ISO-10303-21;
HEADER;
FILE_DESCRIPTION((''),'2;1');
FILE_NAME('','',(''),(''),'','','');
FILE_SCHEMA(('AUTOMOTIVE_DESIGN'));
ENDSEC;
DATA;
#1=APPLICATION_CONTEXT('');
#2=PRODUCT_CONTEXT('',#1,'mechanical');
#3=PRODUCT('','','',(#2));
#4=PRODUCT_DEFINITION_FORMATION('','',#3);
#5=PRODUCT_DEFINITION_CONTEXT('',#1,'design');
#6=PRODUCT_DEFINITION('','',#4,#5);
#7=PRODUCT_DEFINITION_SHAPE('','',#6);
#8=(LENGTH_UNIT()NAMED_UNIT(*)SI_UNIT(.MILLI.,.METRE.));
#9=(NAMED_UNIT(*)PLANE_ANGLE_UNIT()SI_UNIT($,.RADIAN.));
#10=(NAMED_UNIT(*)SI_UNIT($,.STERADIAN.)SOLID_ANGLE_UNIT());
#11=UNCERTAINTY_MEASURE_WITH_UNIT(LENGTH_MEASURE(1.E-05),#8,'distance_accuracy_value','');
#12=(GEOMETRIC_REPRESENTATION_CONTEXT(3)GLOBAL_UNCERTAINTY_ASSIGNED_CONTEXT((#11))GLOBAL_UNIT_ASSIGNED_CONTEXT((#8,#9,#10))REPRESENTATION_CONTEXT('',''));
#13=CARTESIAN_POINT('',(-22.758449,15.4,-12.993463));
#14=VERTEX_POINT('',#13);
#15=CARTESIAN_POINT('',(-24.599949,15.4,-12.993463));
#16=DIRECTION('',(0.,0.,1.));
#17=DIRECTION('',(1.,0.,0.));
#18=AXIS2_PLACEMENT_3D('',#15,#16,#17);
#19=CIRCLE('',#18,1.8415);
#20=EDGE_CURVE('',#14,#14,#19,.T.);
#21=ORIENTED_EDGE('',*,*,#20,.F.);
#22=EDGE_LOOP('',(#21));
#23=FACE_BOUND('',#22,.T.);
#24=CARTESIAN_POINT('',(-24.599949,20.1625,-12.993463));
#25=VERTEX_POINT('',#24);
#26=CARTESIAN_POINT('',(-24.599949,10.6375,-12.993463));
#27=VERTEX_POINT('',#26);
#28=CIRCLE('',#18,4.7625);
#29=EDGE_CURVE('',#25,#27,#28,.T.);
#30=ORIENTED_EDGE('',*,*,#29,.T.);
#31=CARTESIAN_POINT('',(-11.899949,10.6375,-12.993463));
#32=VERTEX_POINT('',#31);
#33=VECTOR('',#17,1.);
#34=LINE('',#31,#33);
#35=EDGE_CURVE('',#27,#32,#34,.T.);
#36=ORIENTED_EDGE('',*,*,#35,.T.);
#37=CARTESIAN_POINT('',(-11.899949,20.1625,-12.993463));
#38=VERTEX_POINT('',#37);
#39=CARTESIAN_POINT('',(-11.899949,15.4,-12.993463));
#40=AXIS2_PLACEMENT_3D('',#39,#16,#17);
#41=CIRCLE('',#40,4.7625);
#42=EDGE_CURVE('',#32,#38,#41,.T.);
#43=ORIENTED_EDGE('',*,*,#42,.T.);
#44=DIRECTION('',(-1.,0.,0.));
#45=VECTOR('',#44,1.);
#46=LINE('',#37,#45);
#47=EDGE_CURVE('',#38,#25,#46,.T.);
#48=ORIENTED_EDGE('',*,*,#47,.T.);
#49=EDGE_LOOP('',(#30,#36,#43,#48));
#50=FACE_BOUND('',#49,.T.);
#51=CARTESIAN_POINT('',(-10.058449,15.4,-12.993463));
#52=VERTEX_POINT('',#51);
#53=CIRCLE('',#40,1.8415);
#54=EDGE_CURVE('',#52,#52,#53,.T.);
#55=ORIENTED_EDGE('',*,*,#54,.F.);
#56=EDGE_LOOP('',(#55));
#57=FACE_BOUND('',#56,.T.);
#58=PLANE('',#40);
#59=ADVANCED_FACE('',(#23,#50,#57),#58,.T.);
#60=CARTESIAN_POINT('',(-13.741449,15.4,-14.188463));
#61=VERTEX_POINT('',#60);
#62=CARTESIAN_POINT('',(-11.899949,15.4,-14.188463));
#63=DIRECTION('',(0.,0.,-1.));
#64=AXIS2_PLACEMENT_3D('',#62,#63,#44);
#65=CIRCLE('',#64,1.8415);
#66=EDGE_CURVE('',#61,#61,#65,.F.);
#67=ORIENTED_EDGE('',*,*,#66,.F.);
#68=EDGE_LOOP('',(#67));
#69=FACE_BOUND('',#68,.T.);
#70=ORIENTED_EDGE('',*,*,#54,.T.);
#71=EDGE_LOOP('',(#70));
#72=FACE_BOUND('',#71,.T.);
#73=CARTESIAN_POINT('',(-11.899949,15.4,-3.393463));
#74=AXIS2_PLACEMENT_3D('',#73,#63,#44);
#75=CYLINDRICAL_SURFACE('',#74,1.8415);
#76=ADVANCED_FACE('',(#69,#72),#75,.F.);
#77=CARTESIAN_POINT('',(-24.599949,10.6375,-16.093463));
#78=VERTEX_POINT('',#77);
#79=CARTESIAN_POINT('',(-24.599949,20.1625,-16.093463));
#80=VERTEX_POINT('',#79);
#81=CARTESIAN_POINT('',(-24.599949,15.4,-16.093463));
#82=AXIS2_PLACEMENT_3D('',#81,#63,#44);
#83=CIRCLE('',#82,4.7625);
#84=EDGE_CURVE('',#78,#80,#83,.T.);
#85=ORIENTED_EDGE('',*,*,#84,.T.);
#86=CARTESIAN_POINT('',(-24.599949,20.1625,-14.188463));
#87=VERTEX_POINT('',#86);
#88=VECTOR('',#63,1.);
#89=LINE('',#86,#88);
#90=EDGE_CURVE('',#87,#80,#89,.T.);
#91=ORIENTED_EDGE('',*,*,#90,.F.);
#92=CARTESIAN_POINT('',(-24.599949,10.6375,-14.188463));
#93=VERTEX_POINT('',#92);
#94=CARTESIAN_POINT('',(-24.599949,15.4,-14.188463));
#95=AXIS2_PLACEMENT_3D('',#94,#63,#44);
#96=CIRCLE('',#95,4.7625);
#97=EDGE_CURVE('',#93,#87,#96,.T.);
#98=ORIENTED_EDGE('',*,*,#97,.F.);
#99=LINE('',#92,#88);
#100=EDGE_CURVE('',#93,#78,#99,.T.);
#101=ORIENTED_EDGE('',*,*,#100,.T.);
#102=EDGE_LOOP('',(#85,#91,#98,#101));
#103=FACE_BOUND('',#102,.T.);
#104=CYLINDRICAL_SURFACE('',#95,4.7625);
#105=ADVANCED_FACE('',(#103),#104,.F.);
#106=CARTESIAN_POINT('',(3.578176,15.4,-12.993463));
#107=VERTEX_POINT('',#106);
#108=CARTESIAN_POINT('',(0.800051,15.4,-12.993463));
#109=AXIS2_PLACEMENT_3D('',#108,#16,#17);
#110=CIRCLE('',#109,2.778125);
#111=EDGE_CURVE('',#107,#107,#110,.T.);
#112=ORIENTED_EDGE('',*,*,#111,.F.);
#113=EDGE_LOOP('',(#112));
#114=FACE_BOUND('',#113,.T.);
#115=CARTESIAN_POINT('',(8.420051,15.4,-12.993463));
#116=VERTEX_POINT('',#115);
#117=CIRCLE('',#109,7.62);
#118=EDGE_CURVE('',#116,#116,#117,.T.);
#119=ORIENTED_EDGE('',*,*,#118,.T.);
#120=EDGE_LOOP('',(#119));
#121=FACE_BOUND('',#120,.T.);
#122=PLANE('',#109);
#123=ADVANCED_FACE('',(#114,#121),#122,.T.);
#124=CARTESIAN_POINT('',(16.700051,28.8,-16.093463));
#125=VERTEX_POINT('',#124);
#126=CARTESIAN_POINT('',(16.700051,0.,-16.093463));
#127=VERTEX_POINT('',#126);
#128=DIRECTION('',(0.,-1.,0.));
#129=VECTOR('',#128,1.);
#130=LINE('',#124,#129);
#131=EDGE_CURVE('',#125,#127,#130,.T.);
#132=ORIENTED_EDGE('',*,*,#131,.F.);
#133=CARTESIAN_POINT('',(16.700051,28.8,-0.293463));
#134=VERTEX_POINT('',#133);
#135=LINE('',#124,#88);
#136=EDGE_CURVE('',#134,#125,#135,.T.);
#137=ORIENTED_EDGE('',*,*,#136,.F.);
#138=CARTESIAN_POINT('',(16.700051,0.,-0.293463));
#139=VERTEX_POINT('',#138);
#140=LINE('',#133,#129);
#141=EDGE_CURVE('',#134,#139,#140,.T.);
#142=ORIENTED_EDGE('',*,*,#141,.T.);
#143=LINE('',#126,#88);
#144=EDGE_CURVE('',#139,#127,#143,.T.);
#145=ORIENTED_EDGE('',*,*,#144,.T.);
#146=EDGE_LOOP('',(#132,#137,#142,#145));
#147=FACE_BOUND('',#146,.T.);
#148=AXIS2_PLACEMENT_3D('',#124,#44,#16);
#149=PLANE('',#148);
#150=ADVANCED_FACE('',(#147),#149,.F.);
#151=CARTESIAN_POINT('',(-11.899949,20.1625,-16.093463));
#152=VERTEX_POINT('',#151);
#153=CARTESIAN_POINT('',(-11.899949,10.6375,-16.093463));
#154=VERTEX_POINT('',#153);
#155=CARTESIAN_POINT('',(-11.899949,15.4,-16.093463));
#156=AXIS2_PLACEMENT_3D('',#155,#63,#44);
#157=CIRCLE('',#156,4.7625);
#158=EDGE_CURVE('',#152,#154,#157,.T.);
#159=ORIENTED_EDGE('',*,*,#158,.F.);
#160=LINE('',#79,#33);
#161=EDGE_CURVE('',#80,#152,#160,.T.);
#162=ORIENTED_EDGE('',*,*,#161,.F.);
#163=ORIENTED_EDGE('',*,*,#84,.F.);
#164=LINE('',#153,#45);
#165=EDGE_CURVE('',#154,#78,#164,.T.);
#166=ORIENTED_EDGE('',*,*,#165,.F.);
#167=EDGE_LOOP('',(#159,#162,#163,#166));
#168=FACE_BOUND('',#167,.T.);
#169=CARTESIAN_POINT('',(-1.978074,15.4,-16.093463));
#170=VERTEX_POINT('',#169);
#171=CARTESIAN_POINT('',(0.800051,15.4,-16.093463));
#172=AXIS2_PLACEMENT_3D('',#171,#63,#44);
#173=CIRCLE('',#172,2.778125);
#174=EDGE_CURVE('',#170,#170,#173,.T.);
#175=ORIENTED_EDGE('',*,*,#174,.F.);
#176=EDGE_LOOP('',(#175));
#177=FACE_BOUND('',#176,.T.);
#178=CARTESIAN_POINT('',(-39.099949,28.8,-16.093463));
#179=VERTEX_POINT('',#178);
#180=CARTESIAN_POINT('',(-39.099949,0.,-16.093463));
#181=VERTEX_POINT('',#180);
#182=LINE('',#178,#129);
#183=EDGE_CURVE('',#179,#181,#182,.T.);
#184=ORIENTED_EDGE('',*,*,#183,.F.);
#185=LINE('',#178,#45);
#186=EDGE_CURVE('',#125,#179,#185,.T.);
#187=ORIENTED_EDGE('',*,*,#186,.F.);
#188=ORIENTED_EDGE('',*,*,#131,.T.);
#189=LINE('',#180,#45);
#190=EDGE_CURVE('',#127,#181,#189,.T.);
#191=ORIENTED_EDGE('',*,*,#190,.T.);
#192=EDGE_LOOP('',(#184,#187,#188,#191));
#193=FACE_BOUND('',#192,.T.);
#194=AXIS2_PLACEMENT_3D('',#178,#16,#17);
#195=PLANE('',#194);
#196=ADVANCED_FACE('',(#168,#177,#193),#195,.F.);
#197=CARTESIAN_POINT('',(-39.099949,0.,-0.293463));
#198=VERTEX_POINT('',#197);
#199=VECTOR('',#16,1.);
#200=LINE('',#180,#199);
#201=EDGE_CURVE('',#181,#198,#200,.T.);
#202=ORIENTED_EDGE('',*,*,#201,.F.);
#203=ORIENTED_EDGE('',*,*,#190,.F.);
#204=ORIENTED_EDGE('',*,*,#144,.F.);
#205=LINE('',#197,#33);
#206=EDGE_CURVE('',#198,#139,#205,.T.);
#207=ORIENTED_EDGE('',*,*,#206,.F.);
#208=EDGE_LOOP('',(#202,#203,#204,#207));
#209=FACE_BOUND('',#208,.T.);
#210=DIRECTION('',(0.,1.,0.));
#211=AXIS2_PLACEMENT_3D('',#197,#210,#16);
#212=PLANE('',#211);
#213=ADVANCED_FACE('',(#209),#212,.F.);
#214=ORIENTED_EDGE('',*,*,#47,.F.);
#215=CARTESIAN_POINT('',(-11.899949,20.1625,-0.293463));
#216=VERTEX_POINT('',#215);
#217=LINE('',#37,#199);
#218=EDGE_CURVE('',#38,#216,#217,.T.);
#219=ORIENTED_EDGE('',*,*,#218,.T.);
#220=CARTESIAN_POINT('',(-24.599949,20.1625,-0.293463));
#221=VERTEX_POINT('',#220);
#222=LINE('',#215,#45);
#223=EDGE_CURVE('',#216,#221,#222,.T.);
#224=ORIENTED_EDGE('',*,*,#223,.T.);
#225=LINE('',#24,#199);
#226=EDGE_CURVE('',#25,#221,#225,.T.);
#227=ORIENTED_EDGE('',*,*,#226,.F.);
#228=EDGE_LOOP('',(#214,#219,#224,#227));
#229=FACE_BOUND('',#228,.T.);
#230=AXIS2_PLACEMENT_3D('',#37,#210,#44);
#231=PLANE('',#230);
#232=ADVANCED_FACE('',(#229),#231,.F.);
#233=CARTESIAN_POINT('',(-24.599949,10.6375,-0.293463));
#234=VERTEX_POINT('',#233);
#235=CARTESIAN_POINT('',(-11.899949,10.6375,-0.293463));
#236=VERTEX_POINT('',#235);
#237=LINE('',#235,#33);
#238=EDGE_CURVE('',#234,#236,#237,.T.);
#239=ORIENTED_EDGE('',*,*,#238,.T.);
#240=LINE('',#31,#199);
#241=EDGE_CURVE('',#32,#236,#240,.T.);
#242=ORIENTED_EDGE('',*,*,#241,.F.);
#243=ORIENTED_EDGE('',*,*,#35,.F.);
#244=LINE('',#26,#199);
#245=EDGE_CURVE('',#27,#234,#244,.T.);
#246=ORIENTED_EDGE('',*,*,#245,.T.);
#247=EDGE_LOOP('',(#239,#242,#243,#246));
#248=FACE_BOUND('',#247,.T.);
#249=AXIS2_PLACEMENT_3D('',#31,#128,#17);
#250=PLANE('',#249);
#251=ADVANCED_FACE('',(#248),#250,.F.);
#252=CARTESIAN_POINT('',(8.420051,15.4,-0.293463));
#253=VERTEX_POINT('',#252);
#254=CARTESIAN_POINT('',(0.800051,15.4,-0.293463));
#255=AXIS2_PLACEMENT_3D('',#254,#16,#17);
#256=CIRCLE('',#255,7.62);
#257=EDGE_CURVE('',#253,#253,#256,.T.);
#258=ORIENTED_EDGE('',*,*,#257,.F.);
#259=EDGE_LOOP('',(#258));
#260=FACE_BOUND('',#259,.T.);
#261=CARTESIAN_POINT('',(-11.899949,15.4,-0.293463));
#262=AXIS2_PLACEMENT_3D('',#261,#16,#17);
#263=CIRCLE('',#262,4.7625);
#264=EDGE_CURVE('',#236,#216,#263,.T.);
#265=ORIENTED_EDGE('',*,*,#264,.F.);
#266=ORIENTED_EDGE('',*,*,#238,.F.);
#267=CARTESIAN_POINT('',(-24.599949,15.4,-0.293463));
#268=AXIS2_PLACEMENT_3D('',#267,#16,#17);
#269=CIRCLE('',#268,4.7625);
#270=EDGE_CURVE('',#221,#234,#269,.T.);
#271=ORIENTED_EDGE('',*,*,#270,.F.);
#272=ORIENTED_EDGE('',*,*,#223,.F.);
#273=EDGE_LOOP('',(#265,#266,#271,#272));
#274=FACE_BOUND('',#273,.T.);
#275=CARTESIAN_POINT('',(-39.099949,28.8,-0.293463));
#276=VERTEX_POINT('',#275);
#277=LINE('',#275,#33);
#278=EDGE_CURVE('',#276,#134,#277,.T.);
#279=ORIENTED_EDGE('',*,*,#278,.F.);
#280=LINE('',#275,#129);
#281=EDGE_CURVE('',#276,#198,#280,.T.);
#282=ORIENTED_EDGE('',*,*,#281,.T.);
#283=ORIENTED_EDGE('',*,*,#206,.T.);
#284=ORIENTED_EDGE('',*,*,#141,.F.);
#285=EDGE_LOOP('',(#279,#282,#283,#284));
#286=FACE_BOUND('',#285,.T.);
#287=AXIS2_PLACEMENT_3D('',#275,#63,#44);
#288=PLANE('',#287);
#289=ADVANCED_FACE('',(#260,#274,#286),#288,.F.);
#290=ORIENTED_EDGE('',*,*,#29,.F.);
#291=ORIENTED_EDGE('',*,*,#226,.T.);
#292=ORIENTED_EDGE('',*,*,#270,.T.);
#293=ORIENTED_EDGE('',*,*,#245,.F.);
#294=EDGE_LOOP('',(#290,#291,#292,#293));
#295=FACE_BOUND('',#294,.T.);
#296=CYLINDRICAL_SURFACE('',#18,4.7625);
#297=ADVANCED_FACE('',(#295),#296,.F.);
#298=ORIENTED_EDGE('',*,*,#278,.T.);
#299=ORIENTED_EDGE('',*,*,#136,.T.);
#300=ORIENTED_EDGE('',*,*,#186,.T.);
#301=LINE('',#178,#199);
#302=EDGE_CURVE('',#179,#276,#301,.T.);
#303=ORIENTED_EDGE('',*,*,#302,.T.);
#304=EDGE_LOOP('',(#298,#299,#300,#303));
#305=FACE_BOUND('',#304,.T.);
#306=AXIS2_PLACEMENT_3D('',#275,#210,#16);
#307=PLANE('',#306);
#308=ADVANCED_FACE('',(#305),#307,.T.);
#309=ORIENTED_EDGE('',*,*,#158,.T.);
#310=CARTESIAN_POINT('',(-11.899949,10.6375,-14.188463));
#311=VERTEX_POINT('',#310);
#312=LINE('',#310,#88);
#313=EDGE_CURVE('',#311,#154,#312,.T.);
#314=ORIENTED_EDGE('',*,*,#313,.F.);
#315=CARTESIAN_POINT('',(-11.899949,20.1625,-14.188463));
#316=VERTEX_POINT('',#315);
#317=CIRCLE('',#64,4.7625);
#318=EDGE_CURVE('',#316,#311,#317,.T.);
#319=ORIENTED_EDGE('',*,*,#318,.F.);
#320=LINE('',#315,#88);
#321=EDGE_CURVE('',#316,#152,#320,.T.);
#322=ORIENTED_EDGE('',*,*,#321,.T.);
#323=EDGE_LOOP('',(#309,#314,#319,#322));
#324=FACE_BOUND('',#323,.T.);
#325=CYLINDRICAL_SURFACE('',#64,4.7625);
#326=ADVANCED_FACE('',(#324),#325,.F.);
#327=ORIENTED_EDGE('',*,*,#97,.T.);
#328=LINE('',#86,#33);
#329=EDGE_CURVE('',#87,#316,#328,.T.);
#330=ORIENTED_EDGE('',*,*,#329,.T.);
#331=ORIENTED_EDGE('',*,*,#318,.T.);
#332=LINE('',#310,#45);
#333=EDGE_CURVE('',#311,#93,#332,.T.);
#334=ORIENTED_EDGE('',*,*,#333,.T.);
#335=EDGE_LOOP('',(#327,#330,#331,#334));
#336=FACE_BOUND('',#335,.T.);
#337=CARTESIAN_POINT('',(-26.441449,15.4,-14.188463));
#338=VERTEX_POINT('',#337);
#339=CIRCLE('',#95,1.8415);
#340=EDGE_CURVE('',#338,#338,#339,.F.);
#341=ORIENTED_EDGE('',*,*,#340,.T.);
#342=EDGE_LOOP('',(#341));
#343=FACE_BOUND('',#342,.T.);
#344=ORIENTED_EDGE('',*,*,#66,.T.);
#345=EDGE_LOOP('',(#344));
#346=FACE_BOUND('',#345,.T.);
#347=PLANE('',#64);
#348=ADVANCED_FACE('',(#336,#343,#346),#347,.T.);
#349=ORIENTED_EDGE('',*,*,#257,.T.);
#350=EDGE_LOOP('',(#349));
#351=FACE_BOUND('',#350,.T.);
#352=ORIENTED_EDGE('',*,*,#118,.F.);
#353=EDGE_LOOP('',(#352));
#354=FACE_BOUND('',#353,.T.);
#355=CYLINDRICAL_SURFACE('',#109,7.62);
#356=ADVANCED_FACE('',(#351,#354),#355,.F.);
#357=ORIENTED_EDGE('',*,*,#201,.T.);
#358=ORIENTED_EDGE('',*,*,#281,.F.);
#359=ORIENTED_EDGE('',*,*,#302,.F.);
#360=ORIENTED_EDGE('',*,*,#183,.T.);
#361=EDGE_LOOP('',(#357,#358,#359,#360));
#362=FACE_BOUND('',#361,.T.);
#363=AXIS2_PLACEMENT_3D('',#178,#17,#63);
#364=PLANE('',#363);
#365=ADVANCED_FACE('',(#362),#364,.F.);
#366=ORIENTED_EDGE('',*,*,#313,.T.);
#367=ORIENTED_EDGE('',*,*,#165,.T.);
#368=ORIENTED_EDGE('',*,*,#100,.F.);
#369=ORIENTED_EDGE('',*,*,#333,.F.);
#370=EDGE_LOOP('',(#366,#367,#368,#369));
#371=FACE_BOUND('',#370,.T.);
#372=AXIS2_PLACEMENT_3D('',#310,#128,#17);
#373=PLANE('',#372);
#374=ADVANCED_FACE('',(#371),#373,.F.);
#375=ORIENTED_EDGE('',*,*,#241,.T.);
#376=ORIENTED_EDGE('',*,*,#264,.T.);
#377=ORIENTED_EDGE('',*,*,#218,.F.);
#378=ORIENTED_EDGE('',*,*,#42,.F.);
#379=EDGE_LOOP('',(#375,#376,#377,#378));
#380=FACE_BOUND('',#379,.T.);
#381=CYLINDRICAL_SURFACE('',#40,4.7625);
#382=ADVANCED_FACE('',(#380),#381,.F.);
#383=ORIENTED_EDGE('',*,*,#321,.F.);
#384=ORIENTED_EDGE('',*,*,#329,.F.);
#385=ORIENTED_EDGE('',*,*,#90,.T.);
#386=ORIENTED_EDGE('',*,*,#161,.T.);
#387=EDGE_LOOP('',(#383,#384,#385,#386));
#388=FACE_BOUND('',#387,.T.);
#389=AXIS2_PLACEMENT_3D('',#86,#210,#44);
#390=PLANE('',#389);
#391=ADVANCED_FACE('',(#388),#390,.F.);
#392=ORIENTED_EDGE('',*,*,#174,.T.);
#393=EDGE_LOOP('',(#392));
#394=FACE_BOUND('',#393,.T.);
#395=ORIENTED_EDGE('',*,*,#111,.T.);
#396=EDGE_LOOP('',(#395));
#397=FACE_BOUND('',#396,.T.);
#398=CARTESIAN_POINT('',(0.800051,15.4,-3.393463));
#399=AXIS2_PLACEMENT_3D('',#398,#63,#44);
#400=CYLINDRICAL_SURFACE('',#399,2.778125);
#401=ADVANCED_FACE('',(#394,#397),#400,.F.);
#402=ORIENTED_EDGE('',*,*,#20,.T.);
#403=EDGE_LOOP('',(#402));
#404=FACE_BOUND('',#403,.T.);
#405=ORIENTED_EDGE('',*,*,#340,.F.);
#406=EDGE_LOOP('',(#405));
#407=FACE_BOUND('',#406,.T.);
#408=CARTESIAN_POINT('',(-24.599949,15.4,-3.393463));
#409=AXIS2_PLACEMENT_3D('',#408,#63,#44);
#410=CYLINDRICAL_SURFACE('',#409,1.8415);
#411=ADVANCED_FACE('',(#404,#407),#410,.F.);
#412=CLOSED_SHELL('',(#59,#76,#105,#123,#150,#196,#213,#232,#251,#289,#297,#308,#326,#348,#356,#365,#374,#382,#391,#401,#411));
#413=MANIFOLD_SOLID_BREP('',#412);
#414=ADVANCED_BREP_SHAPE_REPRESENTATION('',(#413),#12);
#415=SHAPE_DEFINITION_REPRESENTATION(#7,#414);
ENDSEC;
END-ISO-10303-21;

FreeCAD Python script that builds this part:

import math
import FreeCAD as App
import Part
import Sketcher

V = App.Vector
Q = App.Units.Quantity

doc = App.newDocument("Part")
body = doc.addObject("PartDesign::Body", "Body")

# Sketch on XZ plane
sketch1 = body.newObject("Sketcher::SketchObject", "Sketch")
sketch1.AttachmentSupport = (doc.getObject("XZ_Plane"), [""])
sketch1.MapMode = "FlatFace"
sketch1.addGeometry([
    Part.LineSegment(V(-39, -16, 0), V(-39, 0, 0)),
    Part.LineSegment(V(-39, 0, 0), V(17, 0, 0)),
    Part.LineSegment(V(17, 0, 0), V(17, -16, 0)),
    Part.LineSegment(V(17, -16, 0), V(-39, -16, 0)),
], False)
sketch1.addConstraint([
    Sketcher.Constraint("Coincident", 0, 2, 1, 1),
    Sketcher.Constraint("Coincident", 1, 2, 2, 1),
    Sketcher.Constraint("Coincident", 2, 2, 3, 1),
    Sketcher.Constraint("Coincident", 3, 2, 0, 1),
    Sketcher.Constraint("Vertical", 0),
    Sketcher.Constraint("Horizontal", 1),
    Sketcher.Constraint("Vertical", 2),
    Sketcher.Constraint("Horizontal", 3),
    Sketcher.Constraint("DistanceX", 1, 1, 1, 2, Q("55.8 mm")),
    Sketcher.Constraint("DistanceY", 0, 1, 0, 2, Q("15.8 mm")),
    Sketcher.Constraint("DistanceX", 0, 2, -1, 1, Q("39.099949 mm")),
    Sketcher.Constraint("DistanceY", 0, 2, -1, 1, Q("0.293463 mm")),
])
pad1 = body.newObject("PartDesign::Pad", "Pad")
pad1.Profile = sketch1
pad1.Length = 28.8
pad1.Reversed = True

# Sketch on XY plane
sketch2 = body.newObject("Sketcher::SketchObject", "Sketch001")
sketch2.AttachmentSupport = (doc.getObject("XY_Plane"), [""])
sketch2.MapMode = "FlatFace"
sketch2.AttachmentOffset = App.Placement(V(0, 0, -0.293463), App.Rotation())
sketch2.addGeometry([
    Part.Circle(V(0.8, 15.4, 0), V(0, 0, 1), 7.6),  # 0
    Part.LineSegment(V(-24.6, 10.6, 0), V(-11.9, 10.6, 0)),  # 1
    Part.ArcOfCircle(Part.Circle(V(-11.9, 15.4, 0), V(0, 0, 1), 4.8), math.radians(-90), math.radians(90)),  # 2
    Part.LineSegment(V(-11.9, 20.2, 0), V(-24.6, 20.2, 0)),  # 3
    Part.ArcOfCircle(Part.Circle(V(-24.6, 15.4, 0), V(0, 0, 1), 4.8), math.radians(90), math.radians(270)),  # 4
], False)
sketch2.addConstraint([
    Sketcher.Constraint("Tangent", 1, 2, 2, 1),
    Sketcher.Constraint("Tangent", 2, 2, 3, 1),
    Sketcher.Constraint("Tangent", 3, 2, 4, 1),
    Sketcher.Constraint("Tangent", 4, 2, 1, 1),
    Sketcher.Constraint("Horizontal", 1),
    Sketcher.Constraint("Horizontal", 3),
    Sketcher.Constraint("Horizontal", 0, 3, 2, 3),
    Sketcher.Constraint("Diameter", 0, Q("0.6 in")),
    Sketcher.Constraint("DistanceX", 1, 1, 1, 2, Q("0.5 in")),
    Sketcher.Constraint("Radius", 2, Q("0.1875 in")),
    Sketcher.Constraint("DistanceX", 4, 3, 0, 3, Q("1 in")),
    Sketcher.Constraint("DistanceY", -1, 1, 0, 3, Q("15.4 mm")),
    Sketcher.Constraint("DistanceX", -1, 1, 0, 3, Q("0.800051 mm")),
])
pocket1 = body.newObject("PartDesign::Pocket", "Pocket")
pocket1.Profile = sketch2
pocket1.Length = Q("0.5 in")

# Sketch on XY plane
sketch3 = body.newObject("Sketcher::SketchObject", "Sketch002")
sketch3.AttachmentSupport = (doc.getObject("XY_Plane"), [""])
sketch3.MapMode = "FlatFace"
sketch3.AttachmentOffset = App.Placement(V(0, 0, -16.093463), App.Rotation())
sketch3.addGeometry([
    Part.Circle(V(0.8, 15.4, 0), V(0, 0, 1), 2.8),
    Part.Circle(V(-11.9, 15.4, 0), V(0, 0, 1), 1.8),
    Part.Circle(V(-24.6, 15.4, 0), V(0, 0, 1), 1.8),
], False)
sketch3.addConstraint([
    Sketcher.Constraint("Equal", 1, 2),
    Sketcher.Constraint("Horizontal", 0, 3, 1, 3),
    Sketcher.Constraint("Horizontal", 1, 3, 2, 3),
    Sketcher.Constraint("Diameter", 0, Q("0.21875 in")),
    Sketcher.Constraint("Diameter", 1, Q("0.145 in")),
    Sketcher.Constraint("DistanceX", 2, 3, 0, 3, Q("1 in")),
    Sketcher.Constraint("DistanceX", 1, 3, 0, 3, Q("0.5 in")),
    Sketcher.Constraint("DistanceY", -1, 1, 0, 3, Q("15.4 mm")),
    Sketcher.Constraint("DistanceX", -1, 1, 0, 3, Q("0.800051 mm")),
])
pocket2 = body.newObject("PartDesign::Pocket", "Pocket001")
pocket2.Profile = sketch3
pocket2.Length = Q("0.5 in")
pocket2.Reversed = True

# Sketch on XY plane
sketch4 = body.newObject("Sketcher::SketchObject", "Sketch003")
sketch4.AttachmentSupport = (doc.getObject("XY_Plane"), [""])
sketch4.MapMode = "FlatFace"
sketch4.AttachmentOffset = App.Placement(V(0, 0, -16.093463), App.Rotation())
sketch4.addGeometry([
    Part.LineSegment(V(-24.6, 20.2, 0), V(-11.9, 20.2, 0)),
    Part.ArcOfCircle(Part.Circle(V(-11.9, 15.4, 0), V(0, 0, 1), 4.8), math.radians(-90), math.radians(90)),
    Part.LineSegment(V(-11.9, 10.6, 0), V(-24.6, 10.6, 0)),
    Part.ArcOfCircle(Part.Circle(V(-24.6, 15.4, 0), V(0, 0, 1), 4.8), math.radians(90), math.radians(270)),
], False)
sketch4.addConstraint([
    Sketcher.Constraint("Tangent", 0, 2, 1, 2),
    Sketcher.Constraint("Tangent", 1, 1, 2, 1),
    Sketcher.Constraint("Tangent", 2, 2, 3, 2),
    Sketcher.Constraint("Tangent", 3, 1, 0, 1),
    Sketcher.Constraint("Horizontal", 0),
    Sketcher.Constraint("Horizontal", 2),
    Sketcher.Constraint("DistanceX", 0, 1, 0, 2, Q("0.5 in")),
    Sketcher.Constraint("Radius", 1, Q("0.1875 in")),
    Sketcher.Constraint("DistanceY", -1, 1, 1, 3, Q("15.4 mm")),
    Sketcher.Constraint("DistanceX", 1, 3, -1, 1, Q("11.899949 mm")),
])
pocket3 = body.newObject("PartDesign::Pocket", "Pocket002")
pocket3.Profile = sketch4
pocket3.Length = Q("0.075 in")
pocket3.Reversed = True

doc.recompute()
